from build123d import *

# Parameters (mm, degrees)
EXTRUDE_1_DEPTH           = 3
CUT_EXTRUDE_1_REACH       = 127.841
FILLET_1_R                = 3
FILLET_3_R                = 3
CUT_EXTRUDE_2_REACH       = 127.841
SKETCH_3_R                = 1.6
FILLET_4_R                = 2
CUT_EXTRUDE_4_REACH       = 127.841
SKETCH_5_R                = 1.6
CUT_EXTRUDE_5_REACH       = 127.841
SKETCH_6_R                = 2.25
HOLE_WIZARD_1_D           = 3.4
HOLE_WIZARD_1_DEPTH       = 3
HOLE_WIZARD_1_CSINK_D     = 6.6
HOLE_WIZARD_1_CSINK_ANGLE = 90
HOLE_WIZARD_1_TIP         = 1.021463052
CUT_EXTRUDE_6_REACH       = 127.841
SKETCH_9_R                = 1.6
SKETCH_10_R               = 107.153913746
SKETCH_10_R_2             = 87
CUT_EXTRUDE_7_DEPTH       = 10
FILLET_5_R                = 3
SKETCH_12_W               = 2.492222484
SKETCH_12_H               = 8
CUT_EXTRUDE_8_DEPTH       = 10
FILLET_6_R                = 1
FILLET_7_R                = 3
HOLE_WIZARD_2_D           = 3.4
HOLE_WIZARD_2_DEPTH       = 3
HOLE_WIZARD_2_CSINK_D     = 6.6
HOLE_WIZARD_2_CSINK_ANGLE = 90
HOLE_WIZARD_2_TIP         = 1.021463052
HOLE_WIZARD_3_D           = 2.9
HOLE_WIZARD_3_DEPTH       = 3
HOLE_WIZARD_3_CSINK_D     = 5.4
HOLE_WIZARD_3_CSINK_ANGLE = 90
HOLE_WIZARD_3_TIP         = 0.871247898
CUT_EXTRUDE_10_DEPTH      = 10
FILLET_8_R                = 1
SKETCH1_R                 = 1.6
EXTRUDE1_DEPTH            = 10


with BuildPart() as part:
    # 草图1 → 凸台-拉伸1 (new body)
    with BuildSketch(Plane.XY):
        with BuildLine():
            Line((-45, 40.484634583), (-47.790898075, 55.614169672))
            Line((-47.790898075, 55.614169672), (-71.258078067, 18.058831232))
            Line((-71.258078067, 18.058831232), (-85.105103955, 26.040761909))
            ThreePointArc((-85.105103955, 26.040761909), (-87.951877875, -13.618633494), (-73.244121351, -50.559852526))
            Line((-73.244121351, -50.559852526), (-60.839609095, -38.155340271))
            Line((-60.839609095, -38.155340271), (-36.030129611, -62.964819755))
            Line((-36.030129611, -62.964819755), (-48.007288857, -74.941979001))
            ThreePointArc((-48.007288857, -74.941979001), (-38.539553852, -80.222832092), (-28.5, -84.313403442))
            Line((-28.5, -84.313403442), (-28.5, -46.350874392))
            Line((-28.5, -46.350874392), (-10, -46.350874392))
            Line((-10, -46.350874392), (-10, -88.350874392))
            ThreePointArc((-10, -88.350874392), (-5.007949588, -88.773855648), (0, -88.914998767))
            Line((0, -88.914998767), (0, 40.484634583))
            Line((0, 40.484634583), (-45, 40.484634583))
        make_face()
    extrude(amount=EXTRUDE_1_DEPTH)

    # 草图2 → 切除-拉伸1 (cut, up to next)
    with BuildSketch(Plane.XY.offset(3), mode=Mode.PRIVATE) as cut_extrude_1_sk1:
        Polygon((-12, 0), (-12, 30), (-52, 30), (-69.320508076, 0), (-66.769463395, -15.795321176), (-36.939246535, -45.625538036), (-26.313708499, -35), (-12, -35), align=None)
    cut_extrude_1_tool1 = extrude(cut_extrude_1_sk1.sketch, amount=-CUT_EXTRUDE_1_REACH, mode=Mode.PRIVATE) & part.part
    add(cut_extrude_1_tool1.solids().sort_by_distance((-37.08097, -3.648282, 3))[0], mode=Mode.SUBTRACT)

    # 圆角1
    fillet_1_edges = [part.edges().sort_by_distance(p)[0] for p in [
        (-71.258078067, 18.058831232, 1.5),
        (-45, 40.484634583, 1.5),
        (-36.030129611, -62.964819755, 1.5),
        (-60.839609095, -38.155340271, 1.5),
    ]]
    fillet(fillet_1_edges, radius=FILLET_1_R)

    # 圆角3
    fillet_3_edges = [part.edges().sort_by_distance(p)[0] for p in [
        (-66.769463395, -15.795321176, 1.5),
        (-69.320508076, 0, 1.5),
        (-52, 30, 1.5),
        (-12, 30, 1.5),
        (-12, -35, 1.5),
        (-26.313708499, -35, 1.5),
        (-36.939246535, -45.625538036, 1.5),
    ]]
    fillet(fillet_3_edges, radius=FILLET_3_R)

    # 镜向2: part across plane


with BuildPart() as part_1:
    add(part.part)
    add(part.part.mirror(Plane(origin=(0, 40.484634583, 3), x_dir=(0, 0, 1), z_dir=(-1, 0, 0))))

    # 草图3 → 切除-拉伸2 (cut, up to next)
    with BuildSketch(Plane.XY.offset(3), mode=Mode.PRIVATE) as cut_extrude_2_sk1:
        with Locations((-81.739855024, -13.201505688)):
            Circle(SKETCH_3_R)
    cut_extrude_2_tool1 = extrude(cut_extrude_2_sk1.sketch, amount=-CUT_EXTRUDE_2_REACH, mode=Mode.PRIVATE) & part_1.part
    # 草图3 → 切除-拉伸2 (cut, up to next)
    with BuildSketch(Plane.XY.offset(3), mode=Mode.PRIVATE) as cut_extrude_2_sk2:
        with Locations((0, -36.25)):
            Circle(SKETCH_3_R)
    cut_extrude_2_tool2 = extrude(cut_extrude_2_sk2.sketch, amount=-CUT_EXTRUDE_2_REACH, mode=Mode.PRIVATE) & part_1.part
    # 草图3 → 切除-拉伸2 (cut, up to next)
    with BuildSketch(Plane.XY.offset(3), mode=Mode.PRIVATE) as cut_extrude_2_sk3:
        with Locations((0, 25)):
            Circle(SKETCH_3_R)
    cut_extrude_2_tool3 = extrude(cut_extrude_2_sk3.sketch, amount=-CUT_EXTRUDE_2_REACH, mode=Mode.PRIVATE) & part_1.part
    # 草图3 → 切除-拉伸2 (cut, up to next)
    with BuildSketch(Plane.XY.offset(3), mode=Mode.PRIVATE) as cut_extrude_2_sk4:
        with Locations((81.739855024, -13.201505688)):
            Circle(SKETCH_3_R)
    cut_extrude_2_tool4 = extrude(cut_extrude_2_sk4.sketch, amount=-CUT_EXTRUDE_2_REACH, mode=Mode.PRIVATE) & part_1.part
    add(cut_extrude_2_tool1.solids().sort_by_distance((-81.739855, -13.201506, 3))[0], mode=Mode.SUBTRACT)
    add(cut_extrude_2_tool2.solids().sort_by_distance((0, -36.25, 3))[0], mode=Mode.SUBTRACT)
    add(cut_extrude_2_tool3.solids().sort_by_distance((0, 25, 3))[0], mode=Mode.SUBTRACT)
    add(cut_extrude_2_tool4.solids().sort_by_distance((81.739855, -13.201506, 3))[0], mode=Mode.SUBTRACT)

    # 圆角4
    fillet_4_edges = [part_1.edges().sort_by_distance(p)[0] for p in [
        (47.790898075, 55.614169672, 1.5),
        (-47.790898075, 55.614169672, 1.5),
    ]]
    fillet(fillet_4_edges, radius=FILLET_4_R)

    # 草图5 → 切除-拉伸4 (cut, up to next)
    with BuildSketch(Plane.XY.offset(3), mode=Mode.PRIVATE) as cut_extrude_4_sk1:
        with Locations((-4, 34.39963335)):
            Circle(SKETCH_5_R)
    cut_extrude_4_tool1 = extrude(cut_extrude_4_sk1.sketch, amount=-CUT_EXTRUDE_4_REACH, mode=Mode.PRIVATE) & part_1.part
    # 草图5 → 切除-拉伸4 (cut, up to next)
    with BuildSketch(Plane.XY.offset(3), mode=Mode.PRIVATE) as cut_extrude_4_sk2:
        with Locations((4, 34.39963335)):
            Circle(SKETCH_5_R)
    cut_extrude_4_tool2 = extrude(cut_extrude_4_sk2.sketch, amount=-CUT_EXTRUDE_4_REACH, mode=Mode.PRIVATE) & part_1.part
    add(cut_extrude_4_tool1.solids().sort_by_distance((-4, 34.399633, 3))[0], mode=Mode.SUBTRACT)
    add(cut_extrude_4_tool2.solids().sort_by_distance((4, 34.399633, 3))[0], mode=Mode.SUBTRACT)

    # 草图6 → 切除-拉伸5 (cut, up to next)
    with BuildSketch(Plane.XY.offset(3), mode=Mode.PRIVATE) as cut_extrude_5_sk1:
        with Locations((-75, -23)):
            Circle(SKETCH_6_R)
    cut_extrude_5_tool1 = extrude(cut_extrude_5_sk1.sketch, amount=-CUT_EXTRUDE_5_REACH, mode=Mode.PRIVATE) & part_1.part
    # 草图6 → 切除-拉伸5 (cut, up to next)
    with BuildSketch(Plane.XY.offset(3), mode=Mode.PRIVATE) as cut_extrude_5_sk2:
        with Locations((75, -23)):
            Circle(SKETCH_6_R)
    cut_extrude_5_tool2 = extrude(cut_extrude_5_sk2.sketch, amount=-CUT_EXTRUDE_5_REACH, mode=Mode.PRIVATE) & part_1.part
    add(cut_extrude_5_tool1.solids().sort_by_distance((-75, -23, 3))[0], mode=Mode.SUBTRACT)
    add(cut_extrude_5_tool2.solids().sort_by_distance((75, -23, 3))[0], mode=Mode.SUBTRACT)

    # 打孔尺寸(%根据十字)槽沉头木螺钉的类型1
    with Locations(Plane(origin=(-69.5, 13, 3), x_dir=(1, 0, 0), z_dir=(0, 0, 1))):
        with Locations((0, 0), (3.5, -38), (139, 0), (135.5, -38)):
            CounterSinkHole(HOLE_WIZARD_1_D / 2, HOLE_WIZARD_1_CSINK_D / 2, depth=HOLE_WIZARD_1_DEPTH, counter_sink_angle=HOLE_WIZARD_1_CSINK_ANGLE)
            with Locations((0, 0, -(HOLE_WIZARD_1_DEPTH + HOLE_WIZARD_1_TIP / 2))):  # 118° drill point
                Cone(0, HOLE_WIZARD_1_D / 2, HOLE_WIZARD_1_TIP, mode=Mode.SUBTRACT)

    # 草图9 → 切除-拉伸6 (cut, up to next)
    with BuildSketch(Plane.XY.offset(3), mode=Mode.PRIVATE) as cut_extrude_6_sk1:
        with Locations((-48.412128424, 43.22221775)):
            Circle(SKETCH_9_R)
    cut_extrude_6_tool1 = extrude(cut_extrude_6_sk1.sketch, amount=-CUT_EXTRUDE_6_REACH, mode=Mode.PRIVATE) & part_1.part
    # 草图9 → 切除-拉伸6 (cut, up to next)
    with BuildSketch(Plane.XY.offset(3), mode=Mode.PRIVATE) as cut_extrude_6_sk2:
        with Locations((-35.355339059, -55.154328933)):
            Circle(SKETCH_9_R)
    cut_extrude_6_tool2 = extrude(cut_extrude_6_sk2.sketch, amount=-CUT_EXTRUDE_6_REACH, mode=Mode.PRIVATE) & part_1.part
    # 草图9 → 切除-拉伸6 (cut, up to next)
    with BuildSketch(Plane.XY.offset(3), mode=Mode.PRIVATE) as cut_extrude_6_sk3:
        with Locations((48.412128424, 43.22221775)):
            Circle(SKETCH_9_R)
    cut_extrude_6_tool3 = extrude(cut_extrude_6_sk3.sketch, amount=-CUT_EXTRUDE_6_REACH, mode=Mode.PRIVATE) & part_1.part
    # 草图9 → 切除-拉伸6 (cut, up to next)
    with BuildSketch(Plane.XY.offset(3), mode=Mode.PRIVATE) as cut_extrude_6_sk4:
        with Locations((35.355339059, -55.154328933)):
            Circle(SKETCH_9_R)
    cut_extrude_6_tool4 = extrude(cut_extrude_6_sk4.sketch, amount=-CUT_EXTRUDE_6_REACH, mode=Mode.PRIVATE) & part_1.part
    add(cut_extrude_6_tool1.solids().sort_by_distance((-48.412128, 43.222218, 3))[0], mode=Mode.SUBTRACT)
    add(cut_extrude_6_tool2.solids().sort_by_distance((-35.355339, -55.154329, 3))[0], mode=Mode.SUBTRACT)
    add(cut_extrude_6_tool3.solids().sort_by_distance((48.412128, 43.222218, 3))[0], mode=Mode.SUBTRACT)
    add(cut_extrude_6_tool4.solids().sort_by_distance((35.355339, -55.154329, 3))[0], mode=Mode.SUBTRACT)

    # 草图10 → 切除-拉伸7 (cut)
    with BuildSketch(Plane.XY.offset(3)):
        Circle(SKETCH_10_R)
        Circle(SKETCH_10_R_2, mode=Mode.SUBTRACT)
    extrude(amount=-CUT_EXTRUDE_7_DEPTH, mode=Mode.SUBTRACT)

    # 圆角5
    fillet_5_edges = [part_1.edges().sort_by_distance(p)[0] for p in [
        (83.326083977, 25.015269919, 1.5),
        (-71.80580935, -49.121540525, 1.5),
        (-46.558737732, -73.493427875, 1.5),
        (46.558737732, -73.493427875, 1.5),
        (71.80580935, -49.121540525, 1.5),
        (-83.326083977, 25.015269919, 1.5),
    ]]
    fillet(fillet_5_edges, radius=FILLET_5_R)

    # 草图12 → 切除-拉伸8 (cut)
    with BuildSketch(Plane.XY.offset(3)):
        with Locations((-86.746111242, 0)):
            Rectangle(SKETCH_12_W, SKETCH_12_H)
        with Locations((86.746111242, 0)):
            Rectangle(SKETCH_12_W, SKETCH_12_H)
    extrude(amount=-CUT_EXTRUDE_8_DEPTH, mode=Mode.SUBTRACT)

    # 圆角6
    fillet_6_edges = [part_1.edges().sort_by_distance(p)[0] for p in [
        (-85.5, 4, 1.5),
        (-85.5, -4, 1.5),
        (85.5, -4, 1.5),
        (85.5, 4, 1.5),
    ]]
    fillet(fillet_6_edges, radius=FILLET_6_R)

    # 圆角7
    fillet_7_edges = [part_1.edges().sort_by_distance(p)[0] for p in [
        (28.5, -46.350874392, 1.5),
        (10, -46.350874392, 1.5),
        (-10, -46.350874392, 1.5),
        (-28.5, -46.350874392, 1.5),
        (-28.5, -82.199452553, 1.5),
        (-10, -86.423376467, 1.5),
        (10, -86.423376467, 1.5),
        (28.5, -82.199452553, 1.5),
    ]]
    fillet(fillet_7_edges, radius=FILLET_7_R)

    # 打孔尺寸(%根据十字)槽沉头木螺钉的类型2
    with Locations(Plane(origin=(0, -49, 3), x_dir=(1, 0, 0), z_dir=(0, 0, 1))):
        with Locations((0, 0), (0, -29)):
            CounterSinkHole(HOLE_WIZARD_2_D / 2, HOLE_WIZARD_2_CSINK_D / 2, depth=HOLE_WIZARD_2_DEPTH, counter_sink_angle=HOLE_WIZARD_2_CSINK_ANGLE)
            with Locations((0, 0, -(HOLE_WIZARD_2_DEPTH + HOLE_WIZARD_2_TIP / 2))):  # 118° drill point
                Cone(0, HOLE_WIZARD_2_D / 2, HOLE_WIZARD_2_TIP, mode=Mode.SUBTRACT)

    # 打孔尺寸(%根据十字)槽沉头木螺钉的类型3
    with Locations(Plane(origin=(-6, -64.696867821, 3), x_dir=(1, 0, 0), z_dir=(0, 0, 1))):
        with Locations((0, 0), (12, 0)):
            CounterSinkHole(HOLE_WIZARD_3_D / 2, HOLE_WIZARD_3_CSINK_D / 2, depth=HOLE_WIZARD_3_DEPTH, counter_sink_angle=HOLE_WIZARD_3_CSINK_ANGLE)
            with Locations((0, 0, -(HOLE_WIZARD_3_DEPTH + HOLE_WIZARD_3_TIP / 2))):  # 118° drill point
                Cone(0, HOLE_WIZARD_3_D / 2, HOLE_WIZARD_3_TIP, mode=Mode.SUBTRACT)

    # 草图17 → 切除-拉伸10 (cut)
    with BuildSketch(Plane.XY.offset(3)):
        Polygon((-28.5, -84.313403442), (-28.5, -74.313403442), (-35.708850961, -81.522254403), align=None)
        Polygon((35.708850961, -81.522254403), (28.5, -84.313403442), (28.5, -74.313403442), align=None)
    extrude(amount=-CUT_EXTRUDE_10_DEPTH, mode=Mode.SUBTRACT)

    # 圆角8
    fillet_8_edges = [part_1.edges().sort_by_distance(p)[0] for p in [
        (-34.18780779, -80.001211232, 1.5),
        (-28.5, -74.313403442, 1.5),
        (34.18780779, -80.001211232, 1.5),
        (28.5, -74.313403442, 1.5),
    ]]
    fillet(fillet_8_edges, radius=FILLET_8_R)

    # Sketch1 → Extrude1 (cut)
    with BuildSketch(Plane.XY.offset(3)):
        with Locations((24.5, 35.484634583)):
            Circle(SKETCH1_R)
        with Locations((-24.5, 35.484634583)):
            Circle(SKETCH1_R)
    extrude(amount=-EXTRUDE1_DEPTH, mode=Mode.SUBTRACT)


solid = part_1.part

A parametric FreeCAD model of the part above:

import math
import FreeCAD as App
import Part
import Sketcher
Q = App.Units.Quantity


def edges_at(feature, points):
    """Names of the edges that pass closest to the given points."""
    edges = feature.Shape.Edges
    near = lambda p: min(range(len(edges)), key=lambda i: edges[i].distToShape(Part.Vertex(*p))[0])
    return sorted({f"Edge{near(p) + 1}" for p in points})


def add_polygon(sketch, points):
    """Adds a closed chain of lines whose ends are joined by coincident constraints."""
    first, n = sketch.GeometryCount, len(points)
    for a, b in zip(points, points[1:] + points[:1]):
        sketch.addGeometry(Part.LineSegment(App.Vector(*a, 0), App.Vector(*b, 0)), False)
    for i in range(n):
        sketch.addConstraint(Sketcher.Constraint("Coincident", first + i, 2, first + (i + 1) % n, 1))

doc = App.newDocument("Part")
body = doc.addObject("PartDesign::Body", "Body")

# Sketch on XY plane
sketch1 = doc.addObject("Sketcher::SketchObject", "Sketch")
body.addObject(sketch1)
sketch1.AttachmentSupport = (doc.XY_Plane, [""])
sketch1.MapMode = "FlatFace"
sketch1.addGeometry([
    Part.LineSegment(App.Vector(-45, 40.484635, 0), App.Vector(-47.790898, 55.61417, 0)),  # 0
    Part.LineSegment(App.Vector(-47.790898, 55.61417, 0), App.Vector(-71.258078, 18.058831, 0)),  # 1
    Part.LineSegment(App.Vector(-71.258078, 18.058831, 0), App.Vector(-85.105104, 26.040762, 0)),  # 2
    Part.ArcOfCircle(Part.Circle(App.Vector(0, 0, 0), App.Vector(0, 0, 1), 89), math.radians(162.986751), math.radians(214.61702)),  # 3
    Part.LineSegment(App.Vector(-73.244121, -50.559853, 0), App.Vector(-60.839609, -38.15534, 0)),  # 4
    Part.LineSegment(App.Vector(-60.839609, -38.15534, 0), App.Vector(-36.03013, -62.96482, 0)),  # 5
    Part.LineSegment(App.Vector(-36.03013, -62.96482, 0), App.Vector(-48.007289, -74.941979, 0)),  # 6
    Part.ArcOfCircle(Part.Circle(App.Vector(0, 0, 0), App.Vector(0, 0, 1), 89), math.radians(-122.64333), math.radians(-108.676515)),  # 7
    Part.LineSegment(App.Vector(-28.5, -84.313403, 0), App.Vector(-28.5, -46.350874, 0)),  # 8
    Part.LineSegment(App.Vector(-28.5, -46.350874, 0), App.Vector(-10, -46.350874, 0)),  # 9
    Part.LineSegment(App.Vector(-10, -46.350874, 0), App.Vector(-10, -88.350874, 0)),  # 10
    Part.ArcOfCircle(Part.Circle(App.Vector(0, 0, 0), App.Vector(0, 0, 1), 88.914999), math.radians(-96.457545), math.radians(-90)),  # 11
    Part.LineSegment(App.Vector(0, -88.914999, 0), App.Vector(0, 40.484635, 0)),  # 12
    Part.LineSegment(App.Vector(0, 40.484635, 0), App.Vector(-45, 40.484635, 0)),  # 13
], False)
sketch1.addConstraint([
    Sketcher.Constraint("Coincident", 0, 2, 1, 1),
    Sketcher.Constraint("Coincident", 1, 2, 2, 1),
    Sketcher.Constraint("Coincident", 2, 2, 3, 1),
    Sketcher.Constraint("Coincident", 3, 2, 4, 1),
    Sketcher.Constraint("Coincident", 4, 2, 5, 1),
    Sketcher.Constraint("Coincident", 5, 2, 6, 1),
    Sketcher.Constraint("Coincident", 6, 2, 7, 1),
    Sketcher.Constraint("Coincident", 7, 2, 8, 1),
    Sketcher.Constraint("Coincident", 8, 2, 9, 1),
    Sketcher.Constraint("Coincident", 9, 2, 10, 1),
    Sketcher.Constraint("Coincident", 10, 2, 11, 1),
    Sketcher.Constraint("Coincident", 11, 2, 12, 1),
    Sketcher.Constraint("Coincident", 12, 2, 13, 1),
    Sketcher.Constraint("Coincident", 13, 2, 0, 1),
    Sketcher.Constraint("Vertical", 8),
    Sketcher.Constraint("Horizontal", 9),
    Sketcher.Constraint("Vertical", 10),
    Sketcher.Constraint("Vertical", 12),
    Sketcher.Constraint("Horizontal", 13),
    Sketcher.Constraint("Coincident", 3, 3, -1, 1),
    Sketcher.Constraint("Coincident", 7, 3, -1, 1),
    Sketcher.Constraint("Coincident", 11, 3, -1, 1),
    Sketcher.Constraint("Equal", 3, 7),
    Sketcher.Constraint("PointOnObject", 11, 2, -2),
    Sketcher.Constraint("Perpendicular", 4, 5),
    Sketcher.Constraint("Perpendicular", 5, 6),
    Sketcher.Constraint("Radius", 3, Q("89 mm")),
    Sketcher.Constraint("DistanceX", 13, 2, 13, 1, Q("45 mm")),
    Sketcher.Constraint("DistanceY", 10, 2, 10, 1, Q("42 mm")),
    Sketcher.Constraint("Angle", 1, Q("-122 deg")),
    Sketcher.Constraint("Angle", 4, Q("45 deg")),
    Sketcher.Constraint("DistanceX", 9, 1, 9, 2, Q("18.5 mm")),
    Sketcher.Constraint("DistanceX", 9, 2, -1, 1, Q("10 mm")),
    Sketcher.Constraint("Radius", 11, Q("88.914999 mm")),
    Sketcher.Constraint("DistanceX", 0, 2, -1, 1, Q("47.790898 mm")),
    Sketcher.Constraint("Distance", 4, Q("17.542629 mm")),
    Sketcher.Constraint("Distance", 6, Q("16.938261 mm")),
    Sketcher.Constraint("DistanceY", 12, 1, 12, 2, Q("129.399633 mm")),
    Sketcher.Constraint("DistanceY", -1, 1, 0, 2, Q("55.61417 mm")),
    Sketcher.Constraint("DistanceX", 1, 2, -1, 1, Q("71.258078 mm")),
    Sketcher.Constraint("DistanceY", -1, 1, 2, 2, Q("26.040762 mm")),
    Sketcher.Constraint("DistanceX", 3, 2, -1, 1, Q("73.244121 mm")),
])
pad1 = doc.addObject("PartDesign::Pad", "Pad")
body.addObject(pad1)
pad1.Profile = sketch1
pad1.Length = 3

# Sketch on XY plane
sketch2 = doc.addObject("Sketcher::SketchObject", "Sketch001")
body.addObject(sketch2)
sketch2.AttachmentSupport = (doc.XY_Plane, [""])
sketch2.MapMode = "FlatFace"
sketch2.AttachmentOffset = App.Placement(App.Vector(0, 0, 3), App.Rotation())
add_polygon(sketch2, [(-12, 30), (-52, 30), (-69.320508, 0), (-66.769463, -15.795321), (-36.939247, -45.625538), (-26.313708, -35), (-12, -35)])  # lines 0-6
sketch2.addConstraint([
    Sketcher.Constraint("Horizontal", 0),
    Sketcher.Constraint("Horizontal", 5),
    Sketcher.Constraint("Vertical", 6),
    Sketcher.Constraint("PointOnObject", 1, 2, -1),
    Sketcher.Constraint("Perpendicular", 3, 4),
    Sketcher.Constraint("DistanceX", 0, 2, 0, 1, Q("40 mm")),
    Sketcher.Constraint("DistanceY", 6, 1, 6, 2, Q("65 mm")),
    Sketcher.Constraint("Angle", 1, Q("-120 deg")),
    Sketcher.Constraint("Angle", 3, Q("-45 deg")),
    Sketcher.Constraint("Distance", 2, Q("16 mm")),
    Sketcher.Constraint("DistanceX", 0, 2, -1, 1, Q("52 mm")),
    Sketcher.Constraint("DistanceY", -1, 1, 0, 2, Q("30 mm")),
    Sketcher.Constraint("DistanceX", 5, 1, 5, 2, Q("14.313708 mm")),
    Sketcher.Constraint("Distance", 4, Q("15.02678 mm")),
])
pocket1 = doc.addObject("PartDesign::Pocket", "Pocket")
body.addObject(pocket1)
pocket1.Profile = sketch2
pocket1.Type = "UpToFirst"
doc.recompute()

fillet = doc.addObject("PartDesign::Fillet", "Fillet")
body.addObject(fillet)
fillet.Base = (pocket1, edges_at(pocket1, [
    (-71.258, 18.059, 1.5),
    (-45, 40.485, 1.5),
    (-36.03, -62.965, 1.5),
    (-60.84, -38.155, 1.5),
]))
fillet.Radius = 3
doc.recompute()

fillet2 = doc.addObject("PartDesign::Fillet", "Fillet001")
body.addObject(fillet2)
fillet2.Base = (fillet, edges_at(fillet, [
    (-66.769, -15.795, 1.5),
    (-69.321, 0, 1.5),
    (-52, 30, 1.5),
    (-12, 30, 1.5),
    (-12, -35, 1.5),
    (-26.314, -35, 1.5),
    (-36.939, -45.626, 1.5),
]))
fillet2.Radius = 3
body2 = doc.addObject("PartDesign::Body", "Body001")
doc.recompute()

body2.BaseFeature = body
doc.recompute()

mirroring = doc.addObject("Part::Mirroring", "Mirroring")
mirroring.Source = body
mirroring.Base = App.Vector(0, 40.484635, 3)
mirroring.Normal = App.Vector(-1, 0, 0)
body3 = doc.addObject("PartDesign::Body", "Body002")
body3.BaseFeature = mirroring
boolean = doc.addObject("PartDesign::Boolean", "Boolean")
body2.addObject(boolean)
boolean.Type = "Fuse"
boolean.addObjects([body3])
doc.recompute()

# Sketch on XY plane
sketch3 = doc.addObject("Sketcher::SketchObject", "Sketch002")
body2.addObject(sketch3)
sketch3.AttachmentSupport = (doc.getObject("XY_Plane001"), [""])
sketch3.MapMode = "FlatFace"
sketch3.AttachmentOffset = App.Placement(App.Vector(0, 0, 3), App.Rotation())
sketch3.addGeometry(Part.Circle(App.Vector(-81.739855, -13.201506, 0), App.Vector(0, 0, 1), 1.6), False)
sketch3.addConstraint([
    Sketcher.Constraint("Diameter", 0, Q("3.2 mm")),
    Sketcher.Constraint("DistanceX", 0, 3, -1, 1, Q("81.739855 mm")),
    Sketcher.Constraint("DistanceY", 0, 3, -1, 1, Q("13.201506 mm")),
])
pocket2 = doc.addObject("PartDesign::Pocket", "Pocket001")
body2.addObject(pocket2)
pocket2.Profile = sketch3
pocket2.Type = "UpToFirst"

# Sketch on XY plane
sketch4 = doc.addObject("Sketcher::SketchObject", "Sketch003")
body2.addObject(sketch4)
sketch4.AttachmentSupport = (doc.getObject("XY_Plane001"), [""])
sketch4.MapMode = "FlatFace"
sketch4.AttachmentOffset = App.Placement(App.Vector(0, 0, 3), App.Rotation())
sketch4.addGeometry(Part.Circle(App.Vector(0, -36.25, 0), App.Vector(0, 0, 1), 1.6), False)
sketch4.addConstraint([
    Sketcher.Constraint("PointOnObject", 0, 3, -2),
    Sketcher.Constraint("Diameter", 0, Q("3.2 mm")),
    Sketcher.Constraint("DistanceY", 0, 3, -1, 1, Q("36.25 mm")),
])
pocket3 = doc.addObject("PartDesign::Pocket", "Pocket002")
body2.addObject(pocket3)
pocket3.Profile = sketch4
pocket3.Type = "UpToFirst"

# Sketch on XY plane
sketch5 = doc.addObject("Sketcher::SketchObject", "Sketch004")
body2.addObject(sketch5)
sketch5.AttachmentSupport = (doc.getObject("XY_Plane001"), [""])
sketch5.MapMode = "FlatFace"
sketch5.AttachmentOffset = App.Placement(App.Vector(0, 0, 3), App.Rotation())
sketch5.addGeometry(Part.Circle(App.Vector(0, 25, 0), App.Vector(0, 0, 1), 1.6), False)
sketch5.addConstraint([
    Sketcher.Constraint("PointOnObject", 0, 3, -2),
    Sketcher.Constraint("Diameter", 0, Q("3.2 mm")),
    Sketcher.Constraint("DistanceY", -1, 1, 0, 3, Q("25 mm")),
])
pocket4 = doc.addObject("PartDesign::Pocket", "Pocket003")
body2.addObject(pocket4)
pocket4.Profile = sketch5
pocket4.Type = "UpToFirst"

# Sketch on XY plane
sketch6 = doc.addObject("Sketcher::SketchObject", "Sketch005")
body2.addObject(sketch6)
sketch6.AttachmentSupport = (doc.getObject("XY_Plane001"), [""])
sketch6.MapMode = "FlatFace"
sketch6.AttachmentOffset = App.Placement(App.Vector(0, 0, 3), App.Rotation())
sketch6.addGeometry(Part.Circle(App.Vector(81.739855, -13.201506, 0), App.Vector(0, 0, 1), 1.6), False)
sketch6.addConstraint([
    Sketcher.Constraint("Diameter", 0, Q("3.2 mm")),
    Sketcher.Constraint("DistanceX", -1, 1, 0, 3, Q("81.739855 mm")),
    Sketcher.Constraint("DistanceY", 0, 3, -1, 1, Q("13.201506 mm")),
])
pocket5 = doc.addObject("PartDesign::Pocket", "Pocket004")
body2.addObject(pocket5)
pocket5.Profile = sketch6
pocket5.Type = "UpToFirst"
doc.recompute()

fillet3 = doc.addObject("PartDesign::Fillet", "Fillet002")
body2.addObject(fillet3)
fillet3.Base = (pocket5, edges_at(pocket5, [(47.791, 55.614, 1.5), (-47.791, 55.614, 1.5)]))
fillet3.Radius = 2

# Sketch on XY plane
sketch7 = doc.addObject("Sketcher::SketchObject", "Sketch006")
body2.addObject(sketch7)
sketch7.AttachmentSupport = (doc.getObject("XY_Plane001"), [""])
sketch7.MapMode = "FlatFace"
sketch7.AttachmentOffset = App.Placement(App.Vector(0, 0, 3), App.Rotation())
sketch7.addGeometry(Part.Circle(App.Vector(-4, 34.399633, 0), App.Vector(0, 0, 1), 1.6), False)
sketch7.addConstraint([
    Sketcher.Constraint("Diameter", 0, Q("3.2 mm")),
    Sketcher.Constraint("DistanceX", 0, 3, -1, 1, Q("4 mm")),
    Sketcher.Constraint("DistanceY", -1, 1, 0, 3, Q("34.399633 mm")),
])
pocket6 = doc.addObject("PartDesign::Pocket", "Pocket005")
body2.addObject(pocket6)
pocket6.Profile = sketch7
pocket6.Type = "UpToFirst"

# Sketch on XY plane
sketch8 = doc.addObject("Sketcher::SketchObject", "Sketch007")
body2.addObject(sketch8)
sketch8.AttachmentSupport = (doc.getObject("XY_Plane001"), [""])
sketch8.MapMode = "FlatFace"
sketch8.AttachmentOffset = App.Placement(App.Vector(0, 0, 3), App.Rotation())
sketch8.addGeometry(Part.Circle(App.Vector(4, 34.399633, 0), App.Vector(0, 0, 1), 1.6), False)
sketch8.addConstraint([
    Sketcher.Constraint("Diameter", 0, Q("3.2 mm")),
    Sketcher.Constraint("DistanceX", -1, 1, 0, 3, Q("4 mm")),
    Sketcher.Constraint("DistanceY", -1, 1, 0, 3, Q("34.399633 mm")),
])
pocket7 = doc.addObject("PartDesign::Pocket", "Pocket006")
body2.addObject(pocket7)
pocket7.Profile = sketch8
pocket7.Type = "UpToFirst"

# Sketch on XY plane
sketch9 = doc.addObject("Sketcher::SketchObject", "Sketch008")
body2.addObject(sketch9)
sketch9.AttachmentSupport = (doc.getObject("XY_Plane001"), [""])
sketch9.MapMode = "FlatFace"
sketch9.AttachmentOffset = App.Placement(App.Vector(0, 0, 3), App.Rotation())
sketch9.addGeometry(Part.Circle(App.Vector(-75, -23, 0), App.Vector(0, 0, 1), 2.25), False)
sketch9.addConstraint([
    Sketcher.Constraint("Diameter", 0, Q("4.5 mm")),
    Sketcher.Constraint("DistanceX", 0, 3, -1, 1, Q("75 mm")),
    Sketcher.Constraint("DistanceY", 0, 3, -1, 1, Q("23 mm")),
])
pocket8 = doc.addObject("PartDesign::Pocket", "Pocket007")
body2.addObject(pocket8)
pocket8.Profile = sketch9
pocket8.Type = "UpToFirst"

# Sketch on XY plane
sketch10 = doc.addObject("Sketcher::SketchObject", "Sketch009")
body2.addObject(sketch10)
sketch10.AttachmentSupport = (doc.getObject("XY_Plane001"), [""])
sketch10.MapMode = "FlatFace"
sketch10.AttachmentOffset = App.Placement(App.Vector(0, 0, 3), App.Rotation())
sketch10.addGeometry(Part.Circle(App.Vector(75, -23, 0), App.Vector(0, 0, 1), 2.25), False)
sketch10.addConstraint([
    Sketcher.Constraint("Diameter", 0, Q("4.5 mm")),
    Sketcher.Constraint("DistanceX", -1, 1, 0, 3, Q("75 mm")),
    Sketcher.Constraint("DistanceY", 0, 3, -1, 1, Q("23 mm")),
])
pocket9 = doc.addObject("PartDesign::Pocket", "Pocket008")
body2.addObject(pocket9)
pocket9.Profile = sketch10
pocket9.Type = "UpToFirst"

# Sketch on XY plane
sketch11 = doc.addObject("Sketcher::SketchObject", "Sketch010")
body2.addObject(sketch11)
sketch11.AttachmentSupport = (doc.getObject("XY_Plane001"), [""])
sketch11.MapMode = "FlatFace"
sketch11.AttachmentOffset = App.Placement(App.Vector(0, 0, 3), App.Rotation())
sketch11.addGeometry([
    Part.Circle(App.Vector(-69.5, 13, 0), App.Vector(0, 0, 1), 1.7),
    Part.Circle(App.Vector(-66, -25, 0), App.Vector(0, 0, 1), 1.7),
    Part.Circle(App.Vector(69.5, 13, 0), App.Vector(0, 0, 1), 1.7),
    Part.Circle(App.Vector(66, -25, 0), App.Vector(0, 0, 1), 1.7),
], False)
sketch11.addConstraint([
    Sketcher.Constraint("Equal", 0, 1),
    Sketcher.Constraint("Equal", 1, 2),
    Sketcher.Constraint("Equal", 2, 3),
    Sketcher.Constraint("Symmetric", 0, 3, 2, 3, -2),
    Sketcher.Constraint("Symmetric", 1, 3, 3, 3, -2),
    Sketcher.Constraint("Diameter", 0, Q("3.4 mm")),
    Sketcher.Constraint("DistanceY", -1, 1, 0, 3, Q("13 mm")),
    Sketcher.Constraint("DistanceX", 1, 3, -1, 1, Q("66 mm")),
    Sketcher.Constraint("DistanceY", 1, 3, -1, 1, Q("25 mm")),
    Sketcher.Constraint("DistanceX", 0, 3, 2, 3, Q("139 mm")),
])
doc.recompute()
hole = doc.addObject("PartDesign::Hole", "Hole")
body2.addObject(hole)
hole.Profile = sketch11
hole.ThreadType = "None"
hole.Diameter = 3.4
hole.DepthType = "Dimension"
hole.Depth = 3
hole.DrillPoint = "Angled"
hole.DrillPointAngle = 118
hole.HoleCutType = "Countersink"
hole.HoleCutDiameter = 6.6
hole.HoleCutCountersinkAngle = 90

# Sketch on XY plane
sketch12 = doc.addObject("Sketcher::SketchObject", "Sketch011")
body2.addObject(sketch12)
sketch12.AttachmentSupport = (doc.getObject("XY_Plane001"), [""])
sketch12.MapMode = "FlatFace"
sketch12.AttachmentOffset = App.Placement(App.Vector(0, 0, 3), App.Rotation())
sketch12.addGeometry(Part.Circle(App.Vector(-48.412128, 43.222218, 0), App.Vector(0, 0, 1), 1.6), False)
sketch12.addConstraint([
    Sketcher.Constraint("Diameter", 0, Q("3.2 mm")),
    Sketcher.Constraint("DistanceX", 0, 3, -1, 1, Q("48.412128 mm")),
    Sketcher.Constraint("DistanceY", -1, 1, 0, 3, Q("43.222218 mm")),
])
pocket10 = doc.addObject("PartDesign::Pocket", "Pocket009")
body2.addObject(pocket10)
pocket10.Profile = sketch12
pocket10.Type = "UpToFirst"

# Sketch on XY plane
sketch13 = doc.addObject("Sketcher::SketchObject", "Sketch012")
body2.addObject(sketch13)
sketch13.AttachmentSupport = (doc.getObject("XY_Plane001"), [""])
sketch13.MapMode = "FlatFace"
sketch13.AttachmentOffset = App.Placement(App.Vector(0, 0, 3), App.Rotation())
sketch13.addGeometry(Part.Circle(App.Vector(-35.355339, -55.154329, 0), App.Vector(0, 0, 1), 1.6), False)
sketch13.addConstraint([
    Sketcher.Constraint("Diameter", 0, Q("3.2 mm")),
    Sketcher.Constraint("DistanceX", 0, 3, -1, 1, Q("35.355339 mm")),
    Sketcher.Constraint("DistanceY", 0, 3, -1, 1, Q("55.154329 mm")),
])
pocket11 = doc.addObject("PartDesign::Pocket", "Pocket010")
body2.addObject(pocket11)
pocket11.Profile = sketch13
pocket11.Type = "UpToFirst"

# Sketch on XY plane
sketch14 = doc.addObject("Sketcher::SketchObject", "Sketch013")
body2.addObject(sketch14)
sketch14.AttachmentSupport = (doc.getObject("XY_Plane001"), [""])
sketch14.MapMode = "FlatFace"
sketch14.AttachmentOffset = App.Placement(App.Vector(0, 0, 3), App.Rotation())
sketch14.addGeometry(Part.Circle(App.Vector(48.412128, 43.222218, 0), App.Vector(0, 0, 1), 1.6), False)
sketch14.addConstraint([
    Sketcher.Constraint("Diameter", 0, Q("3.2 mm")),
    Sketcher.Constraint("DistanceX", -1, 1, 0, 3, Q("48.412128 mm")),
    Sketcher.Constraint("DistanceY", -1, 1, 0, 3, Q("43.222218 mm")),
])
pocket12 = doc.addObject("PartDesign::Pocket", "Pocket011")
body2.addObject(pocket12)
pocket12.Profile = sketch14
pocket12.Type = "UpToFirst"

# Sketch on XY plane
sketch15 = doc.addObject("Sketcher::SketchObject", "Sketch014")
body2.addObject(sketch15)
sketch15.AttachmentSupport = (doc.getObject("XY_Plane001"), [""])
sketch15.MapMode = "FlatFace"
sketch15.AttachmentOffset = App.Placement(App.Vector(0, 0, 3), App.Rotation())
sketch15.addGeometry(Part.Circle(App.Vector(35.355339, -55.154329, 0), App.Vector(0, 0, 1), 1.6), False)
sketch15.addConstraint([
    Sketcher.Constraint("Diameter", 0, Q("3.2 mm")),
    Sketcher.Constraint("DistanceX", -1, 1, 0, 3, Q("35.355339 mm")),
    Sketcher.Constraint("DistanceY", 0, 3, -1, 1, Q("55.154329 mm")),
])
pocket13 = doc.addObject("PartDesign::Pocket", "Pocket012")
body2.addObject(pocket13)
pocket13.Profile = sketch15
pocket13.Type = "UpToFirst"

# Sketch on XY plane
sketch16 = doc.addObject("Sketcher::SketchObject", "Sketch015")
body2.addObject(sketch16)
sketch16.AttachmentSupport = (doc.getObject("XY_Plane001"), [""])
sketch16.MapMode = "FlatFace"
sketch16.AttachmentOffset = App.Placement(App.Vector(0, 0, 3), App.Rotation())
sketch16.addGeometry([
    Part.Circle(App.Vector(0, 0, 0), App.Vector(0, 0, 1), 107.153914),
    Part.Circle(App.Vector(0, 0, 0), App.Vector(0, 0, 1), 87),
], False)
sketch16.addConstraint([
    Sketcher.Constraint("Coincident", 0, 3, -1, 1),
    Sketcher.Constraint("Coincident", 1, 3, -1, 1),
    Sketcher.Constraint("Diameter", 1, Q("174 mm")),
    Sketcher.Constraint("Diameter", 0, Q("214.307827 mm")),
])
pocket14 = doc.addObject("PartDesign::Pocket", "Pocket013")
body2.addObject(pocket14)
pocket14.Profile = sketch16
pocket14.Length = 10
doc.recompute()

fillet4 = doc.addObject("PartDesign::Fillet", "Fillet003")
body2.addObject(fillet4)
fillet4.Base = (pocket14, edges_at(pocket14, [
    (83.326, 25.015, 1.5),
    (-71.806, -49.122, 1.5),
    (-46.559, -73.493, 1.5),
    (46.559, -73.493, 1.5),
    (71.806, -49.122, 1.5),
    (-83.326, 25.015, 1.5),
]))
fillet4.Radius = 3

# Sketch on XY plane
sketch17 = doc.addObject("Sketcher::SketchObject", "Sketch016")
body2.addObject(sketch17)
sketch17.AttachmentSupport = (doc.getObject("XY_Plane001"), [""])
sketch17.MapMode = "FlatFace"
sketch17.AttachmentOffset = App.Placement(App.Vector(0, 0, 3), App.Rotation())
add_polygon(sketch17, [(-87.992222, 4), (-87.992222, -4), (-85.5, -4), (-85.5, 4)])  # lines 0-3
add_polygon(sketch17, [(85.5, 4), (85.5, -4), (87.992222, -4), (87.992222, 4)])  # lines 4-7
sketch17.addConstraint([
    Sketcher.Constraint("Vertical", 0),
    Sketcher.Constraint("Horizontal", 1),
    Sketcher.Constraint("Vertical", 2),
    Sketcher.Constraint("Horizontal", 3),
    Sketcher.Constraint("Vertical", 4),
    Sketcher.Constraint("Horizontal", 5),
    Sketcher.Constraint("Vertical", 6),
    Sketcher.Constraint("Horizontal", 7),
    Sketcher.Constraint("Symmetric", 2, 2, 4, 2, -1, 1),
    Sketcher.Constraint("Symmetric", 0, 2, 6, 2, -1, 1),
    Sketcher.Constraint("Horizontal", 1, 2, 4, 2),
    Sketcher.Constraint("DistanceY", 0, 2, 0, 1, Q("8 mm")),
    Sketcher.Constraint("DistanceX", 1, 2, 4, 2, Q("171 mm")),
    Sketcher.Constraint("DistanceX", 1, 1, 1, 2, Q("2.492222 mm")),
])
pocket15 = doc.addObject("PartDesign::Pocket", "Pocket014")
body2.addObject(pocket15)
pocket15.Profile = sketch17
pocket15.Length = 10
doc.recompute()

fillet5 = doc.addObject("PartDesign::Fillet", "Fillet004")
body2.addObject(fillet5)
fillet5.Base = (pocket15, edges_at(pocket15, [
    (-85.5, 4, 1.5),
    (-85.5, -4, 1.5),
    (85.5, -4, 1.5),
    (85.5, 4, 1.5),
]))
fillet5.Radius = 1
doc.recompute()

fillet6 = doc.addObject("PartDesign::Fillet", "Fillet005")
body2.addObject(fillet6)
fillet6.Base = (fillet5, edges_at(fillet5, [
    (28.5, -46.351, 1.5),
    (10, -46.351, 1.5),
    (-10, -46.351, 1.5),
    (-28.5, -46.351, 1.5),
    (-28.5, -82.199, 1.5),
    (-10, -86.423, 1.5),
    (10, -86.423, 1.5),
    (28.5, -82.199, 1.5),
]))
fillet6.Radius = 3

# Sketch on XY plane
sketch18 = doc.addObject("Sketcher::SketchObject", "Sketch017")
body2.addObject(sketch18)
sketch18.AttachmentSupport = (doc.getObject("XY_Plane001"), [""])
sketch18.MapMode = "FlatFace"
sketch18.AttachmentOffset = App.Placement(App.Vector(0, 0, 3), App.Rotation())
sketch18.addGeometry([
    Part.Circle(App.Vector(0, -49, 0), App.Vector(0, 0, 1), 1.7),
    Part.Circle(App.Vector(0, -78, 0), App.Vector(0, 0, 1), 1.7),
], False)
sketch18.addConstraint([
    Sketcher.Constraint("Equal", 0, 1),
    Sketcher.Constraint("PointOnObject", 0, 3, -2),
    Sketcher.Constraint("PointOnObject", 1, 3, -2),
    Sketcher.Constraint("Diameter", 0, Q("3.4 mm")),
    Sketcher.Constraint("DistanceY", 0, 3, -1, 1, Q("49 mm")),
    Sketcher.Constraint("DistanceY", 1, 3, -1, 1, Q("78 mm")),
])
doc.recompute()
hole2 = doc.addObject("PartDesign::Hole", "Hole001")
body2.addObject(hole2)
hole2.Profile = sketch18
hole2.ThreadType = "None"
hole2.Diameter = 3.4
hole2.DepthType = "Dimension"
hole2.Depth = 3
hole2.DrillPoint = "Angled"
hole2.DrillPointAngle = 118
hole2.HoleCutType = "Countersink"
hole2.HoleCutDiameter = 6.6
hole2.HoleCutCountersinkAngle = 90

# Sketch on XY plane
sketch19 = doc.addObject("Sketcher::SketchObject", "Sketch018")
body2.addObject(sketch19)
sketch19.AttachmentSupport = (doc.getObject("XY_Plane001"), [""])
sketch19.MapMode = "FlatFace"
sketch19.AttachmentOffset = App.Placement(App.Vector(0, 0, 3), App.Rotation())
sketch19.addGeometry([
    Part.Circle(App.Vector(-6, -64.696868, 0), App.Vector(0, 0, 1), 1.45),
    Part.Circle(App.Vector(6, -64.696868, 0), App.Vector(0, 0, 1), 1.45),
], False)
sketch19.addConstraint([
    Sketcher.Constraint("Equal", 0, 1),
    Sketcher.Constraint("Symmetric", 0, 3, 1, 3, -2),
    Sketcher.Constraint("Diameter", 0, Q("2.9 mm")),
    Sketcher.Constraint("DistanceX", 0, 3, -1, 1, Q("6 mm")),
    Sketcher.Constraint("DistanceY", 0, 3, -1, 1, Q("64.696868 mm")),
])
doc.recompute()
hole3 = doc.addObject("PartDesign::Hole", "Hole002")
body2.addObject(hole3)
hole3.Profile = sketch19
hole3.ThreadType = "None"
hole3.Diameter = 2.9
hole3.DepthType = "Dimension"
hole3.Depth = 3
hole3.DrillPoint = "Angled"
hole3.DrillPointAngle = 118
hole3.HoleCutType = "Countersink"
hole3.HoleCutDiameter = 5.4
hole3.HoleCutCountersinkAngle = 90

# Sketch on XY plane
sketch20 = doc.addObject("Sketcher::SketchObject", "Sketch019")
body2.addObject(sketch20)
sketch20.AttachmentSupport = (doc.getObject("XY_Plane001"), [""])
sketch20.MapMode = "FlatFace"
sketch20.AttachmentOffset = App.Placement(App.Vector(0, 0, 3), App.Rotation())
add_polygon(sketch20, [(-28.5, -84.313403), (-28.5, -74.313403), (-35.708851, -81.522254)])  # lines 0-2
add_polygon(sketch20, [(28.5, -84.313403), (35.708851, -81.522254), (28.5, -74.313403)])  # lines 3-5
sketch20.addConstraint([
    Sketcher.Constraint("Vertical", 0),
    Sketcher.Constraint("Vertical", 5),
    Sketcher.Constraint("Symmetric", 1, 2, 3, 2, -2),
    Sketcher.Constraint("Symmetric", 0, 2, 4, 2, -2),
    Sketcher.Constraint("Perpendicular", 1, 4),
    Sketcher.Constraint("Horizontal", 2, 2, 5, 2),
    Sketcher.Constraint("DistanceY", 0, 1, 0, 2, Q("10 mm")),
    Sketcher.Constraint("DistanceX", 0, 2, 4, 2, Q("57 mm")),
    Sketcher.Constraint("DistanceX", 1, 2, 3, 2, Q("71.417702 mm")),
    Sketcher.Constraint("DistanceY", 0, 2, -1, 1, Q("74.313403 mm")),
])
pocket16 = doc.addObject("PartDesign::Pocket", "Pocket015")
body2.addObject(pocket16)
pocket16.Profile = sketch20
pocket16.Length = 10
doc.recompute()

fillet7 = doc.addObject("PartDesign::Fillet", "Fillet006")
body2.addObject(fillet7)
fillet7.Base = (pocket16, edges_at(pocket16, [
    (-34.188, -80.001, 1.5),
    (-28.5, -74.313, 1.5),
    (34.188, -80.001, 1.5),
    (28.5, -74.313, 1.5),
]))
fillet7.Radius = 1

# Sketch on XY plane
sketch21 = doc.addObject("Sketcher::SketchObject", "Sketch020")
body2.addObject(sketch21)
sketch21.AttachmentSupport = (doc.getObject("XY_Plane001"), [""])
sketch21.MapMode = "FlatFace"
sketch21.AttachmentOffset = App.Placement(App.Vector(0, 0, 3), App.Rotation())
sketch21.addGeometry([
    Part.Circle(App.Vector(24.5, 35.484635, 0), App.Vector(0, 0, 1), 1.6),
    Part.Circle(App.Vector(-24.5, 35.484635, 0), App.Vector(0, 0, 1), 1.6),
], False)
sketch21.addConstraint([
    Sketcher.Constraint("Equal", 0, 1),
    Sketcher.Constraint("Symmetric", 0, 3, 1, 3, -2),
    Sketcher.Constraint("Diameter", 0, Q("3.2 mm")),
    Sketcher.Constraint("DistanceX", 1, 3, 0, 3, Q("49 mm")),
    Sketcher.Constraint("DistanceY", -1, 1, 0, 3, Q("35.484635 mm")),
])
pocket17 = doc.addObject("PartDesign::Pocket", "Pocket016")
body2.addObject(pocket17)
pocket17.Profile = sketch21
pocket17.Length = 10
mirroring.Visibility = False

doc.recompute()
